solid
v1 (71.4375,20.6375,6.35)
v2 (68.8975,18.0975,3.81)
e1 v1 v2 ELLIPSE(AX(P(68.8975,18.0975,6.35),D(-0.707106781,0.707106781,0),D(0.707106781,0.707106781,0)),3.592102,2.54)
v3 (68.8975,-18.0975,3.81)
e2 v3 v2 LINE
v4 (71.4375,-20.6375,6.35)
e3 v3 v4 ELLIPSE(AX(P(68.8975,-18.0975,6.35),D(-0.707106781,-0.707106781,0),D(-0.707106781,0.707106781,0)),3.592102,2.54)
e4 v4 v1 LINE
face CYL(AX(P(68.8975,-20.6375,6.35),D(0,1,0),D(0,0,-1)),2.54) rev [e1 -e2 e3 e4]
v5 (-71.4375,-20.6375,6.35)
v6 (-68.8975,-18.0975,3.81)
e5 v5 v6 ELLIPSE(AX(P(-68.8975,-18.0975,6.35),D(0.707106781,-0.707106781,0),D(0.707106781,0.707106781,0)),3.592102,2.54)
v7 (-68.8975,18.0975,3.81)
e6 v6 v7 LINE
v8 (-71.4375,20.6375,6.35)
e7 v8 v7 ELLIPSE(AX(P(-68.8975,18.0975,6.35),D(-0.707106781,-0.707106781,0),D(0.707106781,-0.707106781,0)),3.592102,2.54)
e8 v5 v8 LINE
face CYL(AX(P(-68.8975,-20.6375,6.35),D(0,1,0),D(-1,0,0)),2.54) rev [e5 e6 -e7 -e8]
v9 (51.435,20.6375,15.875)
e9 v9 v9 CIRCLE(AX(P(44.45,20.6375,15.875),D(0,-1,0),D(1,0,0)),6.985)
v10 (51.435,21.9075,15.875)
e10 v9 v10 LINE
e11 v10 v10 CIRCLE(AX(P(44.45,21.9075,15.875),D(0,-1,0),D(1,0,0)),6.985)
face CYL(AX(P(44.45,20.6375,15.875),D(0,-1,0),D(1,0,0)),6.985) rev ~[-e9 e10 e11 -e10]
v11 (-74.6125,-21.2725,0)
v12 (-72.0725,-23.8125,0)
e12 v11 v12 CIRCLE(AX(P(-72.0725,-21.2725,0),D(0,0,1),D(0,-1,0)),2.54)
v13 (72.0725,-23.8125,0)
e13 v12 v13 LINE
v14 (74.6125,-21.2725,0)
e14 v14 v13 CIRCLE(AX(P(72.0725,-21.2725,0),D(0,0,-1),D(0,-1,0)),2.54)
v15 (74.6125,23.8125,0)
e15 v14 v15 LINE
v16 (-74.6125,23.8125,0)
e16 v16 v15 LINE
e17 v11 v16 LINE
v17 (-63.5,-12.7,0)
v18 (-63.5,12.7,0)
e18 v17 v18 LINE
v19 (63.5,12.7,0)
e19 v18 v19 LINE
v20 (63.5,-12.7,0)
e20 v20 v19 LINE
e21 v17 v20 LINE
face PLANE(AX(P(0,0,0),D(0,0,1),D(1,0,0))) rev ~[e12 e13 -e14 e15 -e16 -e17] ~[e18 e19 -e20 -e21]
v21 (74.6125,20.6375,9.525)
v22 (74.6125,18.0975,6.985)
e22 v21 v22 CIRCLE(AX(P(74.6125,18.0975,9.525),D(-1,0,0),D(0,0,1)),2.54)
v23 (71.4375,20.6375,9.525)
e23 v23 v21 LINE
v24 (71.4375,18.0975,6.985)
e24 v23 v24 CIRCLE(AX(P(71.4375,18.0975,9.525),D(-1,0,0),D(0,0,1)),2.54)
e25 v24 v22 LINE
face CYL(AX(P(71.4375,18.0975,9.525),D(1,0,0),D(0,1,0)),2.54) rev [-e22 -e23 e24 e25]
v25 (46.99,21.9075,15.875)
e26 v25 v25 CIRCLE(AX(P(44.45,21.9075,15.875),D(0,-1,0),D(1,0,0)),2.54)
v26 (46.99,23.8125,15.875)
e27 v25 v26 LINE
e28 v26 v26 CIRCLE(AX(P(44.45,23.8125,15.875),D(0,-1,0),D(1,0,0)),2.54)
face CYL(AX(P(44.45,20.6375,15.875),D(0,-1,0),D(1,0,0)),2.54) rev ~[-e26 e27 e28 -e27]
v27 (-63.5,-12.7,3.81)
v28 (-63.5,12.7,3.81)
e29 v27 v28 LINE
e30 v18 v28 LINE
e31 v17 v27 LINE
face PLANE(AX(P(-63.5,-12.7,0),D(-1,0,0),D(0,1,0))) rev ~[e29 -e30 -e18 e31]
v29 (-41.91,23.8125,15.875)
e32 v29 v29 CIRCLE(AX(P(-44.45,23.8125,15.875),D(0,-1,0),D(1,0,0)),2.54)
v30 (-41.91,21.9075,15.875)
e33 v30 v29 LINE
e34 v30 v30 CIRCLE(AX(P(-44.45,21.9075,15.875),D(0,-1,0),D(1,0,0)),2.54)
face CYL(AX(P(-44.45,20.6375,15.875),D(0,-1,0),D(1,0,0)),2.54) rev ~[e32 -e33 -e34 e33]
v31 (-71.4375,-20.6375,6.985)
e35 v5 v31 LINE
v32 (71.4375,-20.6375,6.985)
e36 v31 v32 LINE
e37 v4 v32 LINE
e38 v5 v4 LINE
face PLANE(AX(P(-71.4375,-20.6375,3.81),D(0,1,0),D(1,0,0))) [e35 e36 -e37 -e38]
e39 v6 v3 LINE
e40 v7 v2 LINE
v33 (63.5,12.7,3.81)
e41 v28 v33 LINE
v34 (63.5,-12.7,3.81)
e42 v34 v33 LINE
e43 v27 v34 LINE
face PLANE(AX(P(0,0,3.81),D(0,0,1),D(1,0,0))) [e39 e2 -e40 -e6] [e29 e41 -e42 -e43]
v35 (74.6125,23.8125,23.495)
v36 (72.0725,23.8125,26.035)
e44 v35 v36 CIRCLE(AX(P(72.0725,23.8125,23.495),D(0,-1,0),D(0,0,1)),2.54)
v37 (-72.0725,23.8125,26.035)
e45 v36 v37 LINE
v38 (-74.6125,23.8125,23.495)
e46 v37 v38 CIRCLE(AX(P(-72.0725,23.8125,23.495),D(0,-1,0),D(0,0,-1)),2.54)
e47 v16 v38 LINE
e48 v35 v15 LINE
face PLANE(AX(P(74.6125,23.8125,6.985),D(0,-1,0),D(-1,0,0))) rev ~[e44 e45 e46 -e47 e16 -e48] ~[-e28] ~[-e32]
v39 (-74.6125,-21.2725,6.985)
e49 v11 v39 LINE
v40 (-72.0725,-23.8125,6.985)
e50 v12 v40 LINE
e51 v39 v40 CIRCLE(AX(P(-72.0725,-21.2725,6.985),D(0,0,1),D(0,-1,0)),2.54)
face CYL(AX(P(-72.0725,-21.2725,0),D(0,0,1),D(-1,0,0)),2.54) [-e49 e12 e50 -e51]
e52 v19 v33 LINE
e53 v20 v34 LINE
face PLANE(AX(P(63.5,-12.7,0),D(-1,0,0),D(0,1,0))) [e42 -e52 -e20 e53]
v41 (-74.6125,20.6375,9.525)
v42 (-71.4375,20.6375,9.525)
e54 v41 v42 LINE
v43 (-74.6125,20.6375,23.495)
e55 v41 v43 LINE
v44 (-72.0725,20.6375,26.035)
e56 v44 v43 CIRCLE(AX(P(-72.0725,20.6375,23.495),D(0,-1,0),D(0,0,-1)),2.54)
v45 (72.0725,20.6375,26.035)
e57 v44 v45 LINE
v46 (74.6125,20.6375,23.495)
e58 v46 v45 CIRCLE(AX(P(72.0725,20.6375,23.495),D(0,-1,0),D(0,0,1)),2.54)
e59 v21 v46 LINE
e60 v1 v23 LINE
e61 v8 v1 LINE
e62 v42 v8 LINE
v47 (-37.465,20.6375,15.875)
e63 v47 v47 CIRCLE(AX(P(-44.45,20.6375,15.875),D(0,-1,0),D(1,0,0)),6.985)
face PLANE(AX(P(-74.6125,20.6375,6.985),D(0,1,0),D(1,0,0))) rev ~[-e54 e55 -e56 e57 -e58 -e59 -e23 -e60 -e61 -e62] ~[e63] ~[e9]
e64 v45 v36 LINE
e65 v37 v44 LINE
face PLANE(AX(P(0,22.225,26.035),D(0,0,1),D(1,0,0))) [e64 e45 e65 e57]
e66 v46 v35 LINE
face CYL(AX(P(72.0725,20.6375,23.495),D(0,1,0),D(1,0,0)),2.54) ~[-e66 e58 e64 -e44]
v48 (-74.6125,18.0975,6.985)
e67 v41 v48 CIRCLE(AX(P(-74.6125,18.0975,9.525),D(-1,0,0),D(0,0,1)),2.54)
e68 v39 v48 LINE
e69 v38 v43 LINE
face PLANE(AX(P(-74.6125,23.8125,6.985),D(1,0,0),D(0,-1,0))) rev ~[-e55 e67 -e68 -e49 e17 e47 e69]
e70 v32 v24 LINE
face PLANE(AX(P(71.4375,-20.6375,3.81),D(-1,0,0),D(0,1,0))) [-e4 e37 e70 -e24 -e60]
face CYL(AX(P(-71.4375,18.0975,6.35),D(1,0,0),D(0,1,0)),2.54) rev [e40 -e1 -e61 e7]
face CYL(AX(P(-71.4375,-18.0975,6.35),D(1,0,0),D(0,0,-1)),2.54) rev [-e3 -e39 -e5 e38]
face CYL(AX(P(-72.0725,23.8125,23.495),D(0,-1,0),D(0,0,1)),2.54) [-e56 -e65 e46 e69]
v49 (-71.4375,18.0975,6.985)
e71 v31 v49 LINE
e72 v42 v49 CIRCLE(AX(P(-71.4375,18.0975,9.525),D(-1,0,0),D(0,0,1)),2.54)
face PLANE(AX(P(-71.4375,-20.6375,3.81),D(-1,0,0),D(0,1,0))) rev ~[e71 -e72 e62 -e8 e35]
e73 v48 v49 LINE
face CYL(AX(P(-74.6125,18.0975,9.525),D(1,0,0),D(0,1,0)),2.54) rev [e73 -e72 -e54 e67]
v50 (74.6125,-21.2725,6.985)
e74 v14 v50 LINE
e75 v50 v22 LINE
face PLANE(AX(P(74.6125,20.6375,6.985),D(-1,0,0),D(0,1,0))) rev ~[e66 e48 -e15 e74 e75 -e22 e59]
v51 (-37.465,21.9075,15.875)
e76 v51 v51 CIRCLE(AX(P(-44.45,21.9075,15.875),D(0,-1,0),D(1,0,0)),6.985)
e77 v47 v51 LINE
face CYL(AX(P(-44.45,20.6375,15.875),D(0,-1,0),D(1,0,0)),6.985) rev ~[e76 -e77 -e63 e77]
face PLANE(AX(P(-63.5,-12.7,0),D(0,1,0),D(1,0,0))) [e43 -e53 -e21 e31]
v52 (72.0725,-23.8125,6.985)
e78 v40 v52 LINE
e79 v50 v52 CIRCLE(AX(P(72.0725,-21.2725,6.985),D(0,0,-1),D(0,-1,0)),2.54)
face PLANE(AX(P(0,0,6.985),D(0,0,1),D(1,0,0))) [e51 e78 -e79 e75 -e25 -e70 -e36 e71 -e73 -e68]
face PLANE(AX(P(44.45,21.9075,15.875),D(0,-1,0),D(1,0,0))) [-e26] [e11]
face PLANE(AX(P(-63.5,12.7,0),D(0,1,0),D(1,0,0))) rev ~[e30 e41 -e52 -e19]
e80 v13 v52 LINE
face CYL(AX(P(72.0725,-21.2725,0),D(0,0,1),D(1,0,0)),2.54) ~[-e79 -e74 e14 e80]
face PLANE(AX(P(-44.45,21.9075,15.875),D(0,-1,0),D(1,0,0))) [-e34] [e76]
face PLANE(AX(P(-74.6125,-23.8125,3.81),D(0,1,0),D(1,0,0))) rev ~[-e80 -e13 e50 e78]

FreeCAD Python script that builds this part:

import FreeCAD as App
import Part
import Sketcher

V = App.Vector
Q = App.Units.Quantity


def edges_at(feature, points):
    """Names of the edges that pass closest to the given points."""
    edges = feature.Shape.Edges
    near = lambda p: min(range(len(edges)), key=lambda i: edges[i].distToShape(Part.Vertex(*p))[0])
    return sorted({f"Edge{near(p) + 1}" for p in points})

doc = App.newDocument("Part")
body = doc.addObject("PartDesign::Body", "Body")

# Sketch on XY plane
sketch1 = body.newObject("Sketcher::SketchObject", "Sketch")
sketch1.AttachmentSupport = (doc.getObject("XY_Plane"), [""])
sketch1.MapMode = "FlatFace"
sketch1.addGeometry([
    Part.LineSegment(V(-74.6125, 23.8125, 0), V(-74.6125, -23.8125, 0)),  # 0
    Part.LineSegment(V(-74.6125, -23.8125, 0), V(74.6125, -23.8125, 0)),  # 1
    Part.LineSegment(V(74.6125, -23.8125, 0), V(74.6125, 23.8125, 0)),  # 2
    Part.LineSegment(V(74.6125, 23.8125, 0), V(-74.6125, 23.8125, 0)),  # 3
    Part.LineSegment(V(63.5, -12.7, 0), V(-63.5, -12.7, 0)),  # 4
    Part.LineSegment(V(-63.5, -12.7, 0), V(-63.5, 12.7, 0)),  # 5
    Part.LineSegment(V(-63.5, 12.7, 0), V(63.5, 12.7, 0)),  # 6
    Part.LineSegment(V(63.5, 12.7, 0), V(63.5, -12.7, 0)),  # 7
], False)
sketch1.addConstraint([
    Sketcher.Constraint("Coincident", 0, 2, 1, 1),
    Sketcher.Constraint("Coincident", 1, 2, 2, 1),
    Sketcher.Constraint("Coincident", 2, 2, 3, 1),
    Sketcher.Constraint("Coincident", 3, 2, 0, 1),
    Sketcher.Constraint("Coincident", 4, 2, 5, 1),
    Sketcher.Constraint("Coincident", 5, 2, 6, 1),
    Sketcher.Constraint("Coincident", 6, 2, 7, 1),
    Sketcher.Constraint("Coincident", 7, 2, 4, 1),
    Sketcher.Constraint("Vertical", 0),
    Sketcher.Constraint("Horizontal", 1),
    Sketcher.Constraint("Vertical", 2),
    Sketcher.Constraint("Horizontal", 3),
    Sketcher.Constraint("Horizontal", 4),
    Sketcher.Constraint("Vertical", 5),
    Sketcher.Constraint("Horizontal", 6),
    Sketcher.Constraint("Vertical", 7),
    Sketcher.Constraint("Symmetric", 0, 2, 2, 2, -1, 1),
    Sketcher.Constraint("Symmetric", 4, 2, 6, 2, -1, 1),
    Sketcher.Constraint("DistanceX", 4, 2, 4, 1, Q("5 in")),
    Sketcher.Constraint("DistanceY", 5, 1, 5, 2, Q("1 in")),
    Sketcher.Constraint("DistanceX", 1, 1, 1, 2, Q("5.875 in")),
    Sketcher.Constraint("DistanceY", 0, 2, 0, 1, Q("1.875 in")),
])
pad1 = body.newObject("PartDesign::Pad", "Pad")
pad1.Profile = sketch1
pad1.Length = Q("0.15 in")

# Sketch on XY plane
sketch2 = body.newObject("Sketcher::SketchObject", "Sketch001")
sketch2.AttachmentSupport = (doc.getObject("XY_Plane"), [""])
sketch2.MapMode = "FlatFace"
sketch2.AttachmentOffset = App.Placement(V(0, 0, 0.15 * 25.4), App.Rotation())
sketch2.addGeometry([
    Part.LineSegment(V(-74.6125, 23.8125, 0), V(-74.6125, -23.8125, 0)),  # 0
    Part.LineSegment(V(-74.6125, -23.8125, 0), V(74.6125, -23.8125, 0)),  # 1
    Part.LineSegment(V(74.6125, -23.8125, 0), V(74.6125, 23.8125, 0)),  # 2
    Part.LineSegment(V(74.6125, 23.8125, 0), V(-74.6125, 23.8125, 0)),  # 3
    Part.LineSegment(V(71.4375, -20.6375, 0), V(-71.4375, -20.6375, 0)),  # 4
    Part.LineSegment(V(-71.4375, -20.6375, 0), V(-71.4375, 20.6375, 0)),  # 5
    Part.LineSegment(V(-71.4375, 20.6375, 0), V(71.4375, 20.6375, 0)),  # 6
    Part.LineSegment(V(71.4375, 20.6375, 0), V(71.4375, -20.6375, 0)),  # 7
], False)
sketch2.addConstraint([
    Sketcher.Constraint("Coincident", 0, 2, 1, 1),
    Sketcher.Constraint("Coincident", 1, 2, 2, 1),
    Sketcher.Constraint("Coincident", 2, 2, 3, 1),
    Sketcher.Constraint("Coincident", 3, 2, 0, 1),
    Sketcher.Constraint("Coincident", 4, 2, 5, 1),
    Sketcher.Constraint("Coincident", 5, 2, 6, 1),
    Sketcher.Constraint("Coincident", 6, 2, 7, 1),
    Sketcher.Constraint("Coincident", 7, 2, 4, 1),
    Sketcher.Constraint("Vertical", 0),
    Sketcher.Constraint("Horizontal", 1),
    Sketcher.Constraint("Vertical", 2),
    Sketcher.Constraint("Horizontal", 3),
    Sketcher.Constraint("Horizontal", 4),
    Sketcher.Constraint("Vertical", 5),
    Sketcher.Constraint("Horizontal", 6),
    Sketcher.Constraint("Vertical", 7),
    Sketcher.Constraint("Symmetric", 0, 2, 2, 2, -1, 1),
    Sketcher.Constraint("Symmetric", 4, 2, 6, 2, -1, 1),
    Sketcher.Constraint("DistanceX", 1, 1, 1, 2, Q("5.875 in")),
    Sketcher.Constraint("DistanceX", 4, 2, 4, 1, Q("5.625 in")),
    Sketcher.Constraint("DistanceY", 0, 2, 0, 1, Q("1.875 in")),
    Sketcher.Constraint("DistanceY", 5, 1, 5, 2, Q("1.625 in")),
])
pad2 = body.newObject("PartDesign::Pad", "Pad001")
pad2.Profile = sketch2
pad2.Length = Q("0.125 in")

# Sketch on XY plane
sketch3 = body.newObject("Sketcher::SketchObject", "Sketch002")
sketch3.AttachmentSupport = (doc.getObject("XY_Plane"), [""])
sketch3.MapMode = "FlatFace"
sketch3.AttachmentOffset = App.Placement(V(0, 0, 0.275 * 25.4), App.Rotation())
sketch3.addGeometry([
    Part.LineSegment(V(74.6125, 23.8125, 0), V(-74.6125, 23.8125, 0)),
    Part.LineSegment(V(-74.6125, 23.8125, 0), V(-74.6125, 20.6375, 0)),
    Part.LineSegment(V(-74.6125, 20.6375, 0), V(74.6125, 20.6375, 0)),
    Part.LineSegment(V(74.6125, 20.6375, 0), V(74.6125, 23.8125, 0)),
], False)
sketch3.addConstraint([
    Sketcher.Constraint("Coincident", 0, 2, 1, 1),
    Sketcher.Constraint("Coincident", 1, 2, 2, 1),
    Sketcher.Constraint("Coincident", 2, 2, 3, 1),
    Sketcher.Constraint("Coincident", 3, 2, 0, 1),
    Sketcher.Constraint("Horizontal", 0),
    Sketcher.Constraint("Vertical", 1),
    Sketcher.Constraint("Horizontal", 2),
    Sketcher.Constraint("Vertical", 3),
    Sketcher.Constraint("DistanceX", 0, 2, 0, 1, Q("5.875 in")),
    Sketcher.Constraint("DistanceY", 1, 2, 1, 1, Q("0.125 in")),
    Sketcher.Constraint("DistanceX", 0, 2, -1, 1, Q("2.9375 in")),
    Sketcher.Constraint("DistanceY", -1, 1, 0, 2, Q("0.9375 in")),
])
pad3 = body.newObject("PartDesign::Pad", "Pad002")
pad3.Profile = sketch3
pad3.Length = Q("0.75 in")

# Sketch on XZ plane
sketch4 = body.newObject("Sketcher::SketchObject", "Sketch003")
sketch4.AttachmentSupport = (doc.getObject("XZ_Plane"), [""])
sketch4.MapMode = "FlatFace"
sketch4.AttachmentOffset = App.Placement(V(0, 0, -0.8125 * 25.4), App.Rotation())
sketch4.addGeometry([
    Part.Circle(V(-44.45, 15.875, 0), V(0, 0, 1), 2.54),
    Part.Circle(V(44.45, 15.875, 0), V(0, 0, 1), 2.54),
], False)
sketch4.addConstraint([
    Sketcher.Constraint("Equal", 0, 1),
    Sketcher.Constraint("Symmetric", 0, 3, 1, 3, -2),
    Sketcher.Constraint("Diameter", 0, Q("0.2 in")),
    Sketcher.Constraint("DistanceX", 0, 3, 1, 3, Q("3.5 in")),
    Sketcher.Constraint("DistanceY", -1, 1, 0, 3, Q("0.625 in")),
])
pocket1 = body.newObject("PartDesign::Pocket", "Pocket")
pocket1.Profile = sketch4
pocket1.Length = Q("1 in")

# Sketch on XZ plane
sketch5 = body.newObject("Sketcher::SketchObject", "Sketch004")
sketch5.AttachmentSupport = (doc.getObject("XZ_Plane"), [""])
sketch5.MapMode = "FlatFace"
sketch5.AttachmentOffset = App.Placement(V(0, 0, -0.8125 * 25.4), App.Rotation())
sketch5.addGeometry([
    Part.Circle(V(-44.45, 15.875, 0), V(0, 0, 1), 6.985),
    Part.Circle(V(-44.45, 15.875, 0), V(0, 0, 1), 2.54),
    Part.Circle(V(44.45, 15.875, 0), V(0, 0, 1), 6.985),
    Part.Circle(V(44.45, 15.875, 0), V(0, 0, 1), 2.54),
], False)
sketch5.addConstraint([
    Sketcher.Constraint("Coincident", 1, 3, 0, 3),
    Sketcher.Constraint("Coincident", 3, 3, 2, 3),
    Sketcher.Constraint("Equal", 0, 2),
    Sketcher.Constraint("Equal", 1, 3),
    Sketcher.Constraint("Symmetric", 0, 3, 2, 3, -2),
    Sketcher.Constraint("Diameter", 1, Q("0.2 in")),
    Sketcher.Constraint("Diameter", 0, Q("0.55 in")),
    Sketcher.Constraint("DistanceX", 0, 3, 2, 3, Q("3.5 in")),
    Sketcher.Constraint("DistanceY", -1, 1, 0, 3, Q("0.625 in")),
])
pocket2 = body.newObject("PartDesign::Pocket", "Pocket001")
pocket2.Profile = sketch5
pocket2.Length = Q("0.05 in")
doc.recompute()

fillet = body.newObject("PartDesign::Fillet", "Fillet")
fillet.Base = (pocket2, edges_at(pocket2, [
    (-73.025, 20.637, 6.985),
    (73.025, 20.637, 6.985),
    (0, 20.637, 3.81),
    (74.612, 22.225, 26.035),
    (-74.612, 22.225, 26.035),
    (-74.612, -23.812, 3.493),
    (74.612, -23.812, 3.493),
    (71.438, 0, 3.81),
    (-71.438, 0, 3.81),
    (0, -20.637, 3.81),
]))
fillet.Radius = Q("0.1 in")

doc.recompute()
